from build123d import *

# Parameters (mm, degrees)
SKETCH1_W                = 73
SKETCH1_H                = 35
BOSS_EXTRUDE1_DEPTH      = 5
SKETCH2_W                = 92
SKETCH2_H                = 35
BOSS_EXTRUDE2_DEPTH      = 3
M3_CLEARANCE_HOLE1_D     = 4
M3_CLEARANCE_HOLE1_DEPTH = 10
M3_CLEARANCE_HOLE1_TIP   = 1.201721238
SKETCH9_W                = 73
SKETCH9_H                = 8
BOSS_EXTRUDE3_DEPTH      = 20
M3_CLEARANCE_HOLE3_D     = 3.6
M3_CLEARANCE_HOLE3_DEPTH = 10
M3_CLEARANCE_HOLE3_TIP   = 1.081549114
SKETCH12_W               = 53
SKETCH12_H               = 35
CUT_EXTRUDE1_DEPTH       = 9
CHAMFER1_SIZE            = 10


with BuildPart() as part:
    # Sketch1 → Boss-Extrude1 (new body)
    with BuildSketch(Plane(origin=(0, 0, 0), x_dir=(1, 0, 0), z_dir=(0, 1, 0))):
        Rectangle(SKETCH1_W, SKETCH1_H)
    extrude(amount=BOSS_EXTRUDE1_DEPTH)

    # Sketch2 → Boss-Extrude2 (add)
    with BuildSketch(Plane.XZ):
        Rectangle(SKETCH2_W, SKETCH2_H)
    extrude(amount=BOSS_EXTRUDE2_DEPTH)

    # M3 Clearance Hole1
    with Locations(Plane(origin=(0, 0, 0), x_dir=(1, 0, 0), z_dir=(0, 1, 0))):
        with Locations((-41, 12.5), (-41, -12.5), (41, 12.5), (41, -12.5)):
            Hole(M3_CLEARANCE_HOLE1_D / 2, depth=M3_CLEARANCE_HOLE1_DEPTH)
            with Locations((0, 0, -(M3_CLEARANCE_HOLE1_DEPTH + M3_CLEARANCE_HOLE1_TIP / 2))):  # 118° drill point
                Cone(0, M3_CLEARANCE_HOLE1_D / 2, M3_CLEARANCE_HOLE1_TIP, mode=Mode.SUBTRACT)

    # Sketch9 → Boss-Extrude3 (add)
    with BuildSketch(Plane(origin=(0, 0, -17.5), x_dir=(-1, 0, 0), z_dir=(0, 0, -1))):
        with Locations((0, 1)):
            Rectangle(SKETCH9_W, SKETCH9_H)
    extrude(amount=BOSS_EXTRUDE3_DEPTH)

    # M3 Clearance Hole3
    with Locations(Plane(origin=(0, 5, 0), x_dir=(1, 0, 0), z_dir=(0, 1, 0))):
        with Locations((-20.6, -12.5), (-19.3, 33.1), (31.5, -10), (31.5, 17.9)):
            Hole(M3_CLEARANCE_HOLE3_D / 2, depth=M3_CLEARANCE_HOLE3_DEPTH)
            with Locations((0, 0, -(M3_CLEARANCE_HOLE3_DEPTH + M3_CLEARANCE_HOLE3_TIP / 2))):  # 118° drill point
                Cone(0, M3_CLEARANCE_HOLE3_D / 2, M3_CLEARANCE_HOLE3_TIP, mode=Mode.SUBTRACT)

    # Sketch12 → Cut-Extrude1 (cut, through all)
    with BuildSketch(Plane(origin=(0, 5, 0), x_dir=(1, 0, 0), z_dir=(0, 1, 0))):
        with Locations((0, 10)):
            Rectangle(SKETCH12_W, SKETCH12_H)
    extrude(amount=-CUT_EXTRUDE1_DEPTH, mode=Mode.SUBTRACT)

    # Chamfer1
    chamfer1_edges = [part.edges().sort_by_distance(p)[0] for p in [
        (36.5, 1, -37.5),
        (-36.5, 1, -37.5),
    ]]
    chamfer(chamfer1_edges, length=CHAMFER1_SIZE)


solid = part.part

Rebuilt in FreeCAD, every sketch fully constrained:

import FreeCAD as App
import Part
import Sketcher

V = App.Vector


def edges_at(feature, points):
    """Names of the edges that pass closest to the given points."""
    edges = feature.Shape.Edges
    near = lambda p: min(range(len(edges)), key=lambda i: edges[i].distToShape(Part.Vertex(*p))[0])
    return sorted({f"Edge{near(p) + 1}" for p in points})

doc = App.newDocument("Part")
body = doc.addObject("PartDesign::Body", "Body")

sketch1 = body.newObject("Sketcher::SketchObject", "Sketch")
sketch1.AttachmentSupport = (doc.getObject("XZ_Plane"), [""])
sketch1.MapMode = "FlatFace"
sketch1.addGeometry([
    Part.LineSegment(V(-36, -18, 0), V(-36, 18, 0)),
    Part.LineSegment(V(-36, 18, 0), V(36, 18, 0)),
    Part.LineSegment(V(36, 18, 0), V(36, -18, 0)),
    Part.LineSegment(V(36, -18, 0), V(-36, -18, 0)),
], False)
sketch1.addConstraint([
    Sketcher.Constraint("Coincident", 0, 2, 1, 1),
    Sketcher.Constraint("Coincident", 1, 2, 2, 1),
    Sketcher.Constraint("Coincident", 2, 2, 3, 1),
    Sketcher.Constraint("Coincident", 3, 2, 0, 1),
    Sketcher.Constraint("Vertical", 0),
    Sketcher.Constraint("Horizontal", 1),
    Sketcher.Constraint("Vertical", 2),
    Sketcher.Constraint("Horizontal", 3),
    Sketcher.Constraint("Symmetric", 0, 2, 2, 2, -1, 1),
    Sketcher.Constraint("DistanceX", 1, 1, 1, 2, 73.0),
    Sketcher.Constraint("DistanceY", 0, 1, 0, 2, 35.0),
])
pad1 = body.newObject("PartDesign::Pad", "Pad")
pad1.Profile = sketch1
pad1.Length = 5
pad1.Reversed = True

sketch2 = body.newObject("Sketcher::SketchObject", "Sketch001")
sketch2.AttachmentSupport = (doc.getObject("XZ_Plane"), [""])
sketch2.MapMode = "FlatFace"
sketch2.addGeometry([
    Part.LineSegment(V(-46, 18, 0), V(-46, -18, 0)),
    Part.LineSegment(V(-46, -18, 0), V(46, -18, 0)),
    Part.LineSegment(V(46, -18, 0), V(46, 18, 0)),
    Part.LineSegment(V(46, 18, 0), V(-46, 18, 0)),
], False)
sketch2.addConstraint([
    Sketcher.Constraint("Coincident", 0, 2, 1, 1),
    Sketcher.Constraint("Coincident", 1, 2, 2, 1),
    Sketcher.Constraint("Coincident", 2, 2, 3, 1),
    Sketcher.Constraint("Coincident", 3, 2, 0, 1),
    Sketcher.Constraint("Vertical", 0),
    Sketcher.Constraint("Horizontal", 1),
    Sketcher.Constraint("Vertical", 2),
    Sketcher.Constraint("Horizontal", 3),
    Sketcher.Constraint("Symmetric", 0, 2, 2, 2, -1, 1),
    Sketcher.Constraint("DistanceX", 1, 1, 1, 2, 92.0),
    Sketcher.Constraint("DistanceY", 0, 2, 0, 1, 35.0),
])
pad2 = body.newObject("PartDesign::Pad", "Pad001")
pad2.Profile = sketch2
pad2.Length = 3

sketch3 = body.newObject("Sketcher::SketchObject", "Sketch002")
sketch3.AttachmentSupport = (doc.getObject("XZ_Plane"), [""])
sketch3.MapMode = "FlatFace"
sketch3.addGeometry([
    Part.Circle(V(-41, -12.5, 0), V(0, 0, 1), 2),
    Part.Circle(V(-41, 12.5, 0), V(0, 0, 1), 2),
    Part.Circle(V(41, -12.5, 0), V(0, 0, 1), 2),
    Part.Circle(V(41, 12.5, 0), V(0, 0, 1), 2),
], False)
sketch3.addConstraint([
    Sketcher.Constraint("Equal", 0, 1),
    Sketcher.Constraint("Equal", 1, 2),
    Sketcher.Constraint("Equal", 2, 3),
    Sketcher.Constraint("Symmetric", 1, 3, 2, 3, -1, 1),
    Sketcher.Constraint("Symmetric", 0, 3, 3, 3, -1, 1),
    Sketcher.Constraint("Symmetric", 0, 3, 2, 3, -2),
    Sketcher.Constraint("Diameter", 0, 4.0),
    Sketcher.Constraint("DistanceX", 0, 3, -1, 1, 41.0),
    Sketcher.Constraint("DistanceY", 0, 3, 1, 3, 25.0),
])
doc.recompute()
hole = body.newObject("PartDesign::Hole", "Hole")
hole.Profile = sketch3
hole.ThreadType = "None"
hole.Diameter = 4
hole.DepthType = "Dimension"
hole.Depth = 10
hole.DrillPoint = "Angled"
hole.DrillPointAngle = 118
hole.Reversed = True

sketch4 = body.newObject("Sketcher::SketchObject", "Sketch003")
sketch4.AttachmentSupport = (doc.getObject("XY_Plane"), [""])
sketch4.MapMode = "FlatFace"
sketch4.AttachmentOffset = App.Placement(V(0, 0, -17.5), App.Rotation())
sketch4.addGeometry([
    Part.LineSegment(V(36, 5, 0), V(36, -3, 0)),
    Part.LineSegment(V(36, -3, 0), V(-36, -3, 0)),
    Part.LineSegment(V(-36, -3, 0), V(-36, 5, 0)),
    Part.LineSegment(V(-36, 5, 0), V(36, 5, 0)),
], False)
sketch4.addConstraint([
    Sketcher.Constraint("Coincident", 0, 2, 1, 1),
    Sketcher.Constraint("Coincident", 1, 2, 2, 1),
    Sketcher.Constraint("Coincident", 2, 2, 3, 1),
    Sketcher.Constraint("Coincident", 3, 2, 0, 1),
    Sketcher.Constraint("Vertical", 0),
    Sketcher.Constraint("Horizontal", 1),
    Sketcher.Constraint("Vertical", 2),
    Sketcher.Constraint("Horizontal", 3),
    Sketcher.Constraint("DistanceX", 1, 2, 1, 1, 73.0),
    Sketcher.Constraint("DistanceY", 0, 2, 0, 1, 8.0),
    Sketcher.Constraint("DistanceY", 0, 2, -1, 1, 3.0),
    Sketcher.Constraint("DistanceX", -1, 1, 0, 2, 36.5),
])
pad3 = body.newObject("PartDesign::Pad", "Pad002")
pad3.Profile = sketch4
pad3.Length = 20
pad3.Reversed = True

sketch5 = body.newObject("Sketcher::SketchObject", "Sketch004")
sketch5.AttachmentSupport = (doc.getObject("XZ_Plane"), [""])
sketch5.MapMode = "FlatFace"
sketch5.AttachmentOffset = App.Placement(V(0, 0, -5), App.Rotation())
sketch5.addGeometry([
    Part.Circle(V(-20.6, 12.5, 0), V(0, 0, 1), 1.8),
    Part.Circle(V(-19.3, -33.1, 0), V(0, 0, 1), 1.8),
    Part.Circle(V(31.5, 10, 0), V(0, 0, 1), 1.8),
    Part.Circle(V(31.5, -17.9, 0), V(0, 0, 1), 1.8),
], False)
sketch5.addConstraint([
    Sketcher.Constraint("Equal", 0, 1),
    Sketcher.Constraint("Equal", 1, 2),
    Sketcher.Constraint("Equal", 2, 3),
    Sketcher.Constraint("Vertical", 2, 3, 3, 3),
    Sketcher.Constraint("Diameter", 0, 3.6),
    Sketcher.Constraint("DistanceY", -1, 1, 2, 3, 10.0),
    Sketcher.Constraint("DistanceX", 0, 3, -1, 1, 20.6),
    Sketcher.Constraint("DistanceY", -1, 1, 0, 3, 12.5),
    Sketcher.Constraint("DistanceX", 1, 3, -1, 1, 19.3),
    Sketcher.Constraint("DistanceY", 1, 3, -1, 1, 33.1),
    Sketcher.Constraint("DistanceX", -1, 1, 2, 3, 31.5),
    Sketcher.Constraint("DistanceY", 3, 3, -1, 1, 17.9),
])
doc.recompute()
hole2 = body.newObject("PartDesign::Hole", "Hole001")
hole2.Profile = sketch5
hole2.ThreadType = "None"
hole2.Diameter = 3.6
hole2.DepthType = "Dimension"
hole2.Depth = 10
hole2.DrillPoint = "Angled"
hole2.DrillPointAngle = 118
hole2.Reversed = True

sketch6 = body.newObject("Sketcher::SketchObject", "Sketch005")
sketch6.AttachmentSupport = (doc.getObject("XZ_Plane"), [""])
sketch6.MapMode = "FlatFace"
sketch6.AttachmentOffset = App.Placement(V(0, 0, -5), App.Rotation())
sketch6.addGeometry([
    Part.LineSegment(V(-26, -28, 0), V(-26, 8, 0)),
    Part.LineSegment(V(-26, 8, 0), V(26, 8, 0)),
    Part.LineSegment(V(26, 8, 0), V(26, -28, 0)),
    Part.LineSegment(V(26, -28, 0), V(-26, -28, 0)),
], False)
sketch6.addConstraint([
    Sketcher.Constraint("Coincident", 0, 2, 1, 1),
    Sketcher.Constraint("Coincident", 1, 2, 2, 1),
    Sketcher.Constraint("Coincident", 2, 2, 3, 1),
    Sketcher.Constraint("Coincident", 3, 2, 0, 1),
    Sketcher.Constraint("Vertical", 0),
    Sketcher.Constraint("Horizontal", 1),
    Sketcher.Constraint("Vertical", 2),
    Sketcher.Constraint("Horizontal", 3),
    Sketcher.Constraint("DistanceX", 1, 1, 1, 2, 53.0),
    Sketcher.Constraint("DistanceY", 0, 1, 0, 2, 35.0),
    Sketcher.Constraint("DistanceX", 0, 2, -1, 1, 26.5),
    Sketcher.Constraint("DistanceY", -1, 1, 0, 2, 7.5),
])
pocket1 = body.newObject("PartDesign::Pocket", "Pocket")
pocket1.Profile = sketch6
pocket1.Type = "ThroughAll"
pocket1.Reversed = True
doc.recompute()

chamfer = body.newObject("PartDesign::Chamfer", "Chamfer")
chamfer.Base = (pocket1, edges_at(pocket1, [(36.5, 1, -37.5), (-36.5, 1, -37.5)]))
chamfer.Size = 10

doc.recompute()
